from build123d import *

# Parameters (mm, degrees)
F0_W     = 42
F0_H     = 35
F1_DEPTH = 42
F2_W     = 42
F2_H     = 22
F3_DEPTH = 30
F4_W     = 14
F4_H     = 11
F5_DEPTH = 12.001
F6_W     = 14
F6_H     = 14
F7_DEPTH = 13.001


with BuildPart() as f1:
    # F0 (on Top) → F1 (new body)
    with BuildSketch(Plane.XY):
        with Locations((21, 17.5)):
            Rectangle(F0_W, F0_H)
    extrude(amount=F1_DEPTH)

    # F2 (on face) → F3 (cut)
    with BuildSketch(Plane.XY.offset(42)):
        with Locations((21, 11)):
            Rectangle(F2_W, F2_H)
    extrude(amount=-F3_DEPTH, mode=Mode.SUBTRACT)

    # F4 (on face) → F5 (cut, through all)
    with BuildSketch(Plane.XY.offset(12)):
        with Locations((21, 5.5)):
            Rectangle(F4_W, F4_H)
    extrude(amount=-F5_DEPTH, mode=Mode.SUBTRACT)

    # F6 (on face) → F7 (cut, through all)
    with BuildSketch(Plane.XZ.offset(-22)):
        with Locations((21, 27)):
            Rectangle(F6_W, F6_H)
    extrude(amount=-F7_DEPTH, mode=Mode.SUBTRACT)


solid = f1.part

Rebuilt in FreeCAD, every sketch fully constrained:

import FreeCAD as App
import Part
import Sketcher

V = App.Vector
Q = App.Units.Quantity


def add_polygon(sketch, points):
    """Adds a closed chain of lines whose ends are joined by coincident constraints."""
    first, n = sketch.GeometryCount, len(points)
    for a, b in zip(points, points[1:] + points[:1]):
        sketch.addGeometry(Part.LineSegment(App.Vector(*a, 0), App.Vector(*b, 0)), False)
    for i in range(n):
        sketch.addConstraint(Sketcher.Constraint("Coincident", first + i, 2, first + (i + 1) % n, 1))

doc = App.newDocument("Part")
body = doc.addObject("PartDesign::Body", "Body")

sketch1 = doc.addObject("Sketcher::SketchObject", "Sketch")
body.addObject(sketch1)
sketch1.AttachmentSupport = (doc.XY_Plane, [""])
sketch1.MapMode = "FlatFace"
add_polygon(sketch1, [(0, 35), (0, 0), (42, 0), (42, 35)])
sketch1.addConstraint(Sketcher.Constraint("Vertical", 0))
sketch1.addConstraint(Sketcher.Constraint("Horizontal", 1))
sketch1.addConstraint(Sketcher.Constraint("Vertical", 2))
sketch1.addConstraint(Sketcher.Constraint("Horizontal", 3))
sketch1.addConstraint(Sketcher.Constraint("Coincident", 0, 2, -1, 1))
sketch1.addConstraint(Sketcher.Constraint("DistanceX", 1, 1, 1, 2, Q("42 mm")))
sketch1.addConstraint(Sketcher.Constraint("DistanceY", 0, 2, 0, 1, Q("35 mm")))
pad1 = doc.addObject("PartDesign::Pad", "Pad")
body.addObject(pad1)
pad1.Profile = sketch1
pad1.Length = 42

sketch2 = doc.addObject("Sketcher::SketchObject", "Sketch001")
body.addObject(sketch2)
sketch2.AttachmentSupport = (doc.XY_Plane, [""])
sketch2.MapMode = "FlatFace"
sketch2.AttachmentOffset = App.Placement(V(0, 0, 42), App.Rotation())
add_polygon(sketch2, [(0, 22), (0, 0), (42, 0), (42, 22)])
sketch2.addConstraint(Sketcher.Constraint("Vertical", 0))
sketch2.addConstraint(Sketcher.Constraint("Horizontal", 1))
sketch2.addConstraint(Sketcher.Constraint("Vertical", 2))
sketch2.addConstraint(Sketcher.Constraint("Horizontal", 3))
sketch2.addConstraint(Sketcher.Constraint("Coincident", 0, 2, -1, 1))
sketch2.addConstraint(Sketcher.Constraint("DistanceX", 1, 1, 1, 2, Q("42 mm")))
sketch2.addConstraint(Sketcher.Constraint("DistanceY", 0, 2, 0, 1, Q("22 mm")))
pocket1 = doc.addObject("PartDesign::Pocket", "Pocket")
body.addObject(pocket1)
pocket1.Profile = sketch2
pocket1.Length = 30

sketch3 = doc.addObject("Sketcher::SketchObject", "Sketch002")
body.addObject(sketch3)
sketch3.AttachmentSupport = (doc.XY_Plane, [""])
sketch3.MapMode = "FlatFace"
sketch3.AttachmentOffset = App.Placement(V(0, 0, 12), App.Rotation())
add_polygon(sketch3, [(14, 11), (14, 0), (28, 0), (28, 11)])
sketch3.addConstraint(Sketcher.Constraint("Vertical", 0))
sketch3.addConstraint(Sketcher.Constraint("Horizontal", 1))
sketch3.addConstraint(Sketcher.Constraint("Vertical", 2))
sketch3.addConstraint(Sketcher.Constraint("Horizontal", 3))
sketch3.addConstraint(Sketcher.Constraint("PointOnObject", 0, 2, -1))
sketch3.addConstraint(Sketcher.Constraint("DistanceX", 1, 1, 1, 2, Q("14 mm")))
sketch3.addConstraint(Sketcher.Constraint("DistanceY", 0, 2, 0, 1, Q("11 mm")))
sketch3.addConstraint(Sketcher.Constraint("DistanceX", -1, 1, 0, 2, Q("14 mm")))
pocket2 = doc.addObject("PartDesign::Pocket", "Pocket001")
body.addObject(pocket2)
pocket2.Profile = sketch3
pocket2.Type = "ThroughAll"

sketch4 = doc.addObject("Sketcher::SketchObject", "Sketch003")
body.addObject(sketch4)
sketch4.AttachmentSupport = (doc.XZ_Plane, [""])
sketch4.MapMode = "FlatFace"
sketch4.AttachmentOffset = App.Placement(V(0, 0, -22), App.Rotation())
add_polygon(sketch4, [(14, 34), (14, 20), (28, 20), (28, 34)])
sketch4.addConstraint(Sketcher.Constraint("Vertical", 0))
sketch4.addConstraint(Sketcher.Constraint("Horizontal", 1))
sketch4.addConstraint(Sketcher.Constraint("Vertical", 2))
sketch4.addConstraint(Sketcher.Constraint("Horizontal", 3))
sketch4.addConstraint(Sketcher.Constraint("Equal", 3, 0))
sketch4.addConstraint(Sketcher.Constraint("DistanceX", 1, 1, 1, 2, Q("14 mm")))
sketch4.addConstraint(Sketcher.Constraint("DistanceX", -1, 1, 0, 2, Q("14 mm")))
sketch4.addConstraint(Sketcher.Constraint("DistanceY", -1, 1, 0, 2, Q("20 mm")))
pocket3 = doc.addObject("PartDesign::Pocket", "Pocket002")
body.addObject(pocket3)
pocket3.Profile = sketch4
pocket3.Type = "ThroughAll"

doc.recompute()
